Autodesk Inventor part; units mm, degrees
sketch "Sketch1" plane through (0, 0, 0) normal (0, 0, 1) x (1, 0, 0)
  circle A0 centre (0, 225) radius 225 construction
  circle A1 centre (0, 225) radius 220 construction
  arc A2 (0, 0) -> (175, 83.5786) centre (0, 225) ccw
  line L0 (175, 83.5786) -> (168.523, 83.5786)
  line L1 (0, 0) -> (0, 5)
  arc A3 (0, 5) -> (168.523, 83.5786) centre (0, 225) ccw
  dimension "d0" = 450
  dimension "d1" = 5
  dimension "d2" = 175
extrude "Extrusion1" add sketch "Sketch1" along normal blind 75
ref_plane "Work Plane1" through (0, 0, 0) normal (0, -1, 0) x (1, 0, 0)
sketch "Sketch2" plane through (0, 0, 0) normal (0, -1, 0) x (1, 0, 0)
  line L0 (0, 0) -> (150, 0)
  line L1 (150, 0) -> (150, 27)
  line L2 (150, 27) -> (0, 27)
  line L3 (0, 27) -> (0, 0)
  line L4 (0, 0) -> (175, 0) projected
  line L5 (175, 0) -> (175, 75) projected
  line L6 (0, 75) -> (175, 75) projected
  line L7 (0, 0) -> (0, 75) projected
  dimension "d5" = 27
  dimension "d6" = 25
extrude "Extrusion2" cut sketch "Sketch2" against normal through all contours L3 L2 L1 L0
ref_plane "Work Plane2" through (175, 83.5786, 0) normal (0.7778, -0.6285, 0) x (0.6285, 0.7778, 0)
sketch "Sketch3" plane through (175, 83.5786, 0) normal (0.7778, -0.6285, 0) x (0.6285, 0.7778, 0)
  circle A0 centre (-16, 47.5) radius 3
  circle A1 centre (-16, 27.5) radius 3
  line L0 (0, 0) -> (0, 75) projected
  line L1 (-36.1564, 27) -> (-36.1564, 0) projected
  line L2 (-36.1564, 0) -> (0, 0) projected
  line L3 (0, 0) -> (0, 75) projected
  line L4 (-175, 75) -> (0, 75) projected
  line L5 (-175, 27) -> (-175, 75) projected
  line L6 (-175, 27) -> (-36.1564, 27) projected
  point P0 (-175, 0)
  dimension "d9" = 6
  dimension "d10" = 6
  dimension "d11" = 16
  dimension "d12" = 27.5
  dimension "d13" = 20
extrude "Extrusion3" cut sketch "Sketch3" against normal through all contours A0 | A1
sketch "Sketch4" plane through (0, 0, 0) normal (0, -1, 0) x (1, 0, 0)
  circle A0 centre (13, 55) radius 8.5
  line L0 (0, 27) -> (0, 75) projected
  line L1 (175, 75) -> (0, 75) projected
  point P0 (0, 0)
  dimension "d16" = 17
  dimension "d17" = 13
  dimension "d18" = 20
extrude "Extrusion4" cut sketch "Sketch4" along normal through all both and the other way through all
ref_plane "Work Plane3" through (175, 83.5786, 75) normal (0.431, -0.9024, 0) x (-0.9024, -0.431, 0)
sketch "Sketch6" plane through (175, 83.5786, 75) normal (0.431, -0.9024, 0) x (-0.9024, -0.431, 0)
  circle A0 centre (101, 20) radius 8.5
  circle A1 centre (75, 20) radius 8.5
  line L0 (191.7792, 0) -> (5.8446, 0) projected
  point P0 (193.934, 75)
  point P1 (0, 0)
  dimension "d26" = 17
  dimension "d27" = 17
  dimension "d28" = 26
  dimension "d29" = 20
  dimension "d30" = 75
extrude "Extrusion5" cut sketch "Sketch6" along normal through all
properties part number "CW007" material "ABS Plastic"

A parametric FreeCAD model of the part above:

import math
import FreeCAD as App
import Part
import Sketcher

V = App.Vector
Q = App.Units.Quantity

doc = App.newDocument("Part")
body = doc.addObject("PartDesign::Body", "Body")

# Sketch on XY plane
sketch1 = body.newObject("Sketcher::SketchObject", "Sketch")
sketch1.AttachmentSupport = (doc.getObject("XY_Plane"), [""])
sketch1.MapMode = "FlatFace"
sketch1.addGeometry([
    Part.LineSegment(V(0, 5, 0), V(0, 0, 0)),
    Part.ArcOfCircle(Part.Circle(V(0, 225, 0), V(0, 0, 1), 225), math.radians(-90), math.radians(-38.94245)),
    Part.LineSegment(V(175, 83.5786, 0), V(168.523, 83.5786, 0)),
    Part.ArcOfCircle(Part.Circle(V(0, 225, 0), V(0, 0, 1), 220), math.radians(-90), math.radians(-40.002756)),
], False)
sketch1.addConstraint([
    Sketcher.Constraint("Coincident", 0, 2, 1, 1),
    Sketcher.Constraint("Coincident", 1, 2, 2, 1),
    Sketcher.Constraint("Coincident", 2, 2, 3, 2),
    Sketcher.Constraint("Coincident", 3, 1, 0, 1),
    Sketcher.Constraint("Vertical", 0),
    Sketcher.Constraint("Horizontal", 2),
    Sketcher.Constraint("Coincident", 0, 2, -1, 1),
    Sketcher.Constraint("Coincident", 3, 3, 1, 3),
    Sketcher.Constraint("PointOnObject", 1, 3, -2),
    Sketcher.Constraint("Radius", 1, Q("225 mm")),
    Sketcher.Constraint("DistanceY", 0, 2, 0, 1, Q("5 mm")),
    Sketcher.Constraint("DistanceX", -1, 1, 1, 2, Q("175 mm")),
])
pad1 = body.newObject("PartDesign::Pad", "Pad")
pad1.Profile = sketch1
pad1.Length = 75

# Sketch on XZ plane
sketch2 = body.newObject("Sketcher::SketchObject", "Sketch001")
sketch2.AttachmentSupport = (doc.getObject("XZ_Plane"), [""])
sketch2.MapMode = "FlatFace"
sketch2.addGeometry([
    Part.LineSegment(V(0, 27, 0), V(0, 0, 0)),
    Part.LineSegment(V(0, 0, 0), V(150, 0, 0)),
    Part.LineSegment(V(150, 0, 0), V(150, 27, 0)),
    Part.LineSegment(V(150, 27, 0), V(0, 27, 0)),
], False)
sketch2.addConstraint([
    Sketcher.Constraint("Coincident", 0, 2, 1, 1),
    Sketcher.Constraint("Coincident", 1, 2, 2, 1),
    Sketcher.Constraint("Coincident", 2, 2, 3, 1),
    Sketcher.Constraint("Coincident", 3, 2, 0, 1),
    Sketcher.Constraint("Vertical", 0),
    Sketcher.Constraint("Horizontal", 1),
    Sketcher.Constraint("Vertical", 2),
    Sketcher.Constraint("Horizontal", 3),
    Sketcher.Constraint("Coincident", 0, 2, -1, 1),
    Sketcher.Constraint("DistanceY", 0, 2, 0, 1, Q("27 mm")),
    Sketcher.Constraint("DistanceX", 1, 1, 1, 2, Q("150 mm")),
])
pocket1 = body.newObject("PartDesign::Pocket", "Pocket")
pocket1.Profile = sketch2
pocket1.Type = "ThroughAll"

# Sketch on an angled plane
sketch3 = body.newObject("Sketcher::SketchObject", "Sketch002")
sketch3.Placement = App.Placement(V(175, 83.5786, 0), App.Rotation(V(0.628504686, 0.777805799, 0), V(0, 0, 1.000000001), V(0.777805799, -0.628504686, 0), "ZXY"))
sketch3.addGeometry([
    Part.Circle(V(-16, 47.5, 0), V(0, 0, 1), 3),
    Part.Circle(V(-16, 27.5, 0), V(0, 0, 1), 3),
], False)
sketch3.addConstraint([
    Sketcher.Constraint("Equal", 0, 1),
    Sketcher.Constraint("Vertical", 0, 3, 1, 3),
    Sketcher.Constraint("Diameter", 0, Q("6 mm")),
    Sketcher.Constraint("DistanceX", 0, 3, -1, 1, Q("16 mm")),
    Sketcher.Constraint("DistanceY", 1, 3, 0, 3, Q("20 mm")),
    Sketcher.Constraint("DistanceY", -1, 1, 1, 3, Q("27.5 mm")),
])
pocket2 = body.newObject("PartDesign::Pocket", "Pocket001")
pocket2.Profile = sketch3
pocket2.Type = "ThroughAll"

# Sketch on XZ plane
sketch4 = body.newObject("Sketcher::SketchObject", "Sketch003")
sketch4.AttachmentSupport = (doc.getObject("XZ_Plane"), [""])
sketch4.MapMode = "FlatFace"
sketch4.addGeometry(Part.Circle(V(13, 55, 0), V(0, 0, 1), 8.5), False)
sketch4.addConstraint([
    Sketcher.Constraint("Diameter", 0, Q("17 mm")),
    Sketcher.Constraint("DistanceX", -1, 1, 0, 3, Q("13 mm")),
    Sketcher.Constraint("DistanceY", -1, 1, 0, 3, Q("55 mm")),
])
pocket3 = body.newObject("PartDesign::Pocket", "Pocket002")
pocket3.Profile = sketch4
pocket3.Type = "ThroughAll"
pocket3.Midplane = True

# Sketch on an angled plane
sketch5 = body.newObject("Sketcher::SketchObject", "Sketch004")
sketch5.Placement = App.Placement(V(175, 83.5786, 75), App.Rotation(V(-0.902360856, -0.430981304, 0), V(0, 0, -0.999999999), V(0.430981304, -0.902360856, 0), "ZXY"))
sketch5.addGeometry([
    Part.Circle(V(101, 20, 0), V(0, 0, 1), 8.5),
    Part.Circle(V(75, 20, 0), V(0, 0, 1), 8.5),
], False)
sketch5.addConstraint([
    Sketcher.Constraint("Equal", 0, 1),
    Sketcher.Constraint("Horizontal", 0, 3, 1, 3),
    Sketcher.Constraint("Diameter", 0, Q("17 mm")),
    Sketcher.Constraint("DistanceY", -1, 1, 0, 3, Q("20 mm")),
    Sketcher.Constraint("DistanceX", -1, 1, 1, 3, Q("75 mm")),
    Sketcher.Constraint("DistanceX", 1, 3, 0, 3, Q("26 mm")),
])
pocket4 = body.newObject("PartDesign::Pocket", "Pocket003")
pocket4.Profile = sketch5
pocket4.Type = "ThroughAll"
pocket4.Reversed = True

doc.recompute()
